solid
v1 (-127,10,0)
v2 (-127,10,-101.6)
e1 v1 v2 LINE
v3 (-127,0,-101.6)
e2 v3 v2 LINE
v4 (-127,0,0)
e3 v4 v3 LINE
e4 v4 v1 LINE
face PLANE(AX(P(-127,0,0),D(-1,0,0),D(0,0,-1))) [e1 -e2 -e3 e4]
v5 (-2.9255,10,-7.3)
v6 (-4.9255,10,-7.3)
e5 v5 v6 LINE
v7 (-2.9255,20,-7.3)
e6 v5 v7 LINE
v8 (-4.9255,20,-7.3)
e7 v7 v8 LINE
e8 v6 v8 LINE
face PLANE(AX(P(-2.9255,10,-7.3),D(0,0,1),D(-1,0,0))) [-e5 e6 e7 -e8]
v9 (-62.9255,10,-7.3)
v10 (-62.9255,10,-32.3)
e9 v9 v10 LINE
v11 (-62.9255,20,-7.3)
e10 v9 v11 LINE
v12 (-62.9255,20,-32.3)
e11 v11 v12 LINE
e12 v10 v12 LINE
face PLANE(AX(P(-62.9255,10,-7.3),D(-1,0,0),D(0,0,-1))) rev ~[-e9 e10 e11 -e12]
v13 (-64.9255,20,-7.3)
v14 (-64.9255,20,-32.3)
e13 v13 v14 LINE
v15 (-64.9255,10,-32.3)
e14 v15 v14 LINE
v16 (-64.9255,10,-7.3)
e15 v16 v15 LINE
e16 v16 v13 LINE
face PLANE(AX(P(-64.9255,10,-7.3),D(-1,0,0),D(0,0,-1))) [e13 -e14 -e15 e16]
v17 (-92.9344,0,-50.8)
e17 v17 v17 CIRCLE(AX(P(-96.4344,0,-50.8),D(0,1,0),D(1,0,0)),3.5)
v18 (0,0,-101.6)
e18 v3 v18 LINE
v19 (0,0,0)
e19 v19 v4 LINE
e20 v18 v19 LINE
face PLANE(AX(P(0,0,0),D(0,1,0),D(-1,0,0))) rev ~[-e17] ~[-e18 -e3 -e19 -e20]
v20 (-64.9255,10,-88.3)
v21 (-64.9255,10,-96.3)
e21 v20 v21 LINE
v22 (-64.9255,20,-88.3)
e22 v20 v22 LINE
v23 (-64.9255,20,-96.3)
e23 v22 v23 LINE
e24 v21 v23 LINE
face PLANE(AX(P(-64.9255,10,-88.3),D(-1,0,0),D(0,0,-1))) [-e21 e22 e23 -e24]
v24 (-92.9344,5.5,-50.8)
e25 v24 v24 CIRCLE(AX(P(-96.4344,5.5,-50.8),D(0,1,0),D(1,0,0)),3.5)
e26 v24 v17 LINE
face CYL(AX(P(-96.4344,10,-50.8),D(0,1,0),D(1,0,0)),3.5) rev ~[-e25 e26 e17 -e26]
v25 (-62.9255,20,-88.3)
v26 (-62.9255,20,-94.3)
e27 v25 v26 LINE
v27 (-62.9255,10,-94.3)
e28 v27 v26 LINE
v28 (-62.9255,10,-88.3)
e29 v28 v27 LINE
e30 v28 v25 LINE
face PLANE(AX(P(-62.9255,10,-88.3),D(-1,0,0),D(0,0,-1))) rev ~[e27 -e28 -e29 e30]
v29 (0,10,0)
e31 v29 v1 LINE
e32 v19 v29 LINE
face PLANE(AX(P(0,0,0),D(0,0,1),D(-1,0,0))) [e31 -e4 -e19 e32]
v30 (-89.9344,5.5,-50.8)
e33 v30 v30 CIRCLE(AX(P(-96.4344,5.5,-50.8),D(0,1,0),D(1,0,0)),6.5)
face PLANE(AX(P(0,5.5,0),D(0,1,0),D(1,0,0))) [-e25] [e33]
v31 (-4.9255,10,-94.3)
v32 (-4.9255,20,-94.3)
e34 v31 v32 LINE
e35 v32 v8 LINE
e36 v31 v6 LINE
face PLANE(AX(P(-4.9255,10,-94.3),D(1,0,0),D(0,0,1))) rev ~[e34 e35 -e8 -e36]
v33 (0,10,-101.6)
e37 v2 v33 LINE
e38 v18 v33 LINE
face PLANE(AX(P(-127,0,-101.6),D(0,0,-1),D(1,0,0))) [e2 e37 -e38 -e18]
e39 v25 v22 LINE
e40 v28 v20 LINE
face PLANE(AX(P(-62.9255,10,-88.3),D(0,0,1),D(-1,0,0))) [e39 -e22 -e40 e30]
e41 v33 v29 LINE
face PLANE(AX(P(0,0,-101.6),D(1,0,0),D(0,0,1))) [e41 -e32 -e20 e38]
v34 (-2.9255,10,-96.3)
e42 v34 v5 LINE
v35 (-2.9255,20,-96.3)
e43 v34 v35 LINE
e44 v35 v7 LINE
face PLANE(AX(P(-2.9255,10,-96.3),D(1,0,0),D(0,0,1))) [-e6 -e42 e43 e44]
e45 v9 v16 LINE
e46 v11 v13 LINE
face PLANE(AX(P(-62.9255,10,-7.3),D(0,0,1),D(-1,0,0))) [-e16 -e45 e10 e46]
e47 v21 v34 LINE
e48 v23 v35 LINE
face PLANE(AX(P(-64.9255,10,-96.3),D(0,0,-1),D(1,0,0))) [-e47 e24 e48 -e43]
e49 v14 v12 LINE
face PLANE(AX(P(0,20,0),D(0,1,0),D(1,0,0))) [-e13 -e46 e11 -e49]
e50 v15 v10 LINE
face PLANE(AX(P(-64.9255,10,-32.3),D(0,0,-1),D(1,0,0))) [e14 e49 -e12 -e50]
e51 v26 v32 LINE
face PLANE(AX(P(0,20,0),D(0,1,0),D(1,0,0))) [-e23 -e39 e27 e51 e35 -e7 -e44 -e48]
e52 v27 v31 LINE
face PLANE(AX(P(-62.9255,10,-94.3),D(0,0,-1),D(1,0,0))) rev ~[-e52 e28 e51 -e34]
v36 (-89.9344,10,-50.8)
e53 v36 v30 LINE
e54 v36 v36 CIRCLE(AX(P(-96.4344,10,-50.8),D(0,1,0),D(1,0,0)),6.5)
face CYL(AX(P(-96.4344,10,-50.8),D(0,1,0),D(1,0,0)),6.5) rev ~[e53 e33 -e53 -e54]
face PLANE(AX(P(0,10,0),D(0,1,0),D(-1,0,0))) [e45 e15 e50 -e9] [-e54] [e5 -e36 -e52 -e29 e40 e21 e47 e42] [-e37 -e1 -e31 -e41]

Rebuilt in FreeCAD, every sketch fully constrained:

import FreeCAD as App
import Part
import Sketcher
from FreeCAD import Vector
Q = App.Units.Quantity


def add_polygon(sketch, points):
    """Adds a closed chain of lines whose ends are joined by coincident constraints."""
    first, n = sketch.GeometryCount, len(points)
    for a, b in zip(points, points[1:] + points[:1]):
        sketch.addGeometry(Part.LineSegment(App.Vector(*a, 0), App.Vector(*b, 0)), False)
    for i in range(n):
        sketch.addConstraint(Sketcher.Constraint("Coincident", first + i, 2, first + (i + 1) % n, 1))

doc = App.newDocument("Part")
params = doc.addObject("Spreadsheet::Sheet", "Params")
for row, (alias, value) in enumerate([
    ("sketch1_width", "127 mm"),
    ("sketch1_height", "101.6 mm"),
    ("pad1_length", "10 mm"),
    ("sketch2_diameter", "7 mm"),
    ("sketch3_width", "2 mm"),
    ("sketch3_width2", "62 mm"),
    ("sketch3_height", "8 mm"),
    ("sketch3_height2", "6 mm"),
    ("sketch3_height3", "25 mm"),
    ("pad2_length", "10 mm"),
    ("sketch4_diameter", "13 mm"),
    ("sketch4_diameter2", "7 mm"),
    ("pocket2_length", "4.5 mm"),
], start=1):
    params.set(f"A{row}", alias)
    params.set(f"B{row}", "=" + value)
    params.setAlias(f"B{row}", alias)

body = doc.addObject("PartDesign::Body", "Body")

# Sketch on XZ plane
sketch1 = doc.addObject("Sketcher::SketchObject", "Sketch")
body.addObject(sketch1)
sketch1.AttachmentSupport = (doc.XZ_Plane, [""])
sketch1.MapMode = "FlatFace"
add_polygon(sketch1, [(-127, 0), (0, 0), (0, -101.6), (-127, -101.6)])  # lines 0-3
sketch1.addConstraint([
    Sketcher.Constraint("Horizontal", 0),
    Sketcher.Constraint("Vertical", 1),
    Sketcher.Constraint("Horizontal", 2),
    Sketcher.Constraint("Vertical", 3),
    Sketcher.Constraint("Coincident", 0, 2, -1, 1),
    Sketcher.Constraint("DistanceX", 0, 1, 0, 2, Q("127 mm")),
    Sketcher.Constraint("DistanceY", 1, 2, 1, 1, Q("101.6 mm")),
])
sketch1.setExpression("Constraints[9]", "Params.sketch1_width")
sketch1.setExpression("Constraints[10]", "Params.sketch1_height")
pad1 = doc.addObject("PartDesign::Pad", "Pad")
body.addObject(pad1)
pad1.Profile = sketch1
pad1.setExpression("Length", "Params.pad1_length")
pad1.Reversed = True

# Sketch on XZ plane
sketch2 = doc.addObject("Sketcher::SketchObject", "Sketch001")
body.addObject(sketch2)
sketch2.AttachmentSupport = (doc.XZ_Plane, [""])
sketch2.MapMode = "FlatFace"
sketch2.AttachmentOffset = App.Placement(Vector(0, 0, -10), App.Rotation())
sketch2.addGeometry(Part.Circle(Vector(-96.4344, -50.8, 0), Vector(0, 0, 1), 3.5), False)
sketch2.addConstraint([
    Sketcher.Constraint("Diameter", 0, Q("7 mm")),
    Sketcher.Constraint("DistanceY", 0, 3, -1, 1, Q("50.8 mm")),
    Sketcher.Constraint("DistanceX", 0, 3, -1, 1, Q("96.4344 mm")),
])
sketch2.setExpression("Constraints[0]", "Params.sketch2_diameter")
pocket1 = doc.addObject("PartDesign::Pocket", "Pocket")
body.addObject(pocket1)
pocket1.Profile = sketch2
pocket1.Type = "ThroughAll"
pocket1.Reversed = True

# Sketch on XZ plane
sketch3 = doc.addObject("Sketcher::SketchObject", "Sketch002")
body.addObject(sketch3)
sketch3.AttachmentSupport = (doc.XZ_Plane, [""])
sketch3.MapMode = "FlatFace"
sketch3.AttachmentOffset = App.Placement(Vector(0, 0, -10), App.Rotation())
add_polygon(sketch3, [(-4.9255, -94.3), (-4.9255, -7.3), (-2.9255, -7.3), (-2.9255, -96.3), (-64.9255, -96.3), (-64.9255, -88.3), (-62.9255, -88.3), (-62.9255, -94.3)])  # lines 0-7
add_polygon(sketch3, [(-64.9255, -7.3), (-62.9255, -7.3), (-62.9255, -32.3), (-64.9255, -32.3)])  # lines 8-11
sketch3.addConstraint([
    Sketcher.Constraint("Vertical", 0),
    Sketcher.Constraint("Horizontal", 1),
    Sketcher.Constraint("Vertical", 2),
    Sketcher.Constraint("Horizontal", 3),
    Sketcher.Constraint("Vertical", 4),
    Sketcher.Constraint("Horizontal", 5),
    Sketcher.Constraint("Vertical", 6),
    Sketcher.Constraint("Horizontal", 7),
    Sketcher.Constraint("Horizontal", 8),
    Sketcher.Constraint("Vertical", 9),
    Sketcher.Constraint("Horizontal", 10),
    Sketcher.Constraint("Vertical", 11),
    Sketcher.Constraint("Horizontal", 1, 2, 8, 2),
    Sketcher.Constraint("Vertical", 6, 2, 8, 2),
    Sketcher.Constraint("Vertical", 4, 2, 10, 2),
    Sketcher.Constraint("Equal", 1, 5),
    Sketcher.Constraint("DistanceX", 1, 1, 1, 2, Q("2 mm")),
    Sketcher.Constraint("DistanceX", 3, 2, 3, 1, Q("62 mm")),
    Sketcher.Constraint("DistanceY", 4, 1, 4, 2, Q("8 mm")),
    Sketcher.Constraint("DistanceY", 6, 2, 6, 1, Q("6 mm")),
    Sketcher.Constraint("DistanceY", 9, 2, 9, 1, Q("25 mm")),
    Sketcher.Constraint("DistanceY", 6, 2, 9, 2, Q("62 mm")),
    Sketcher.Constraint("DistanceY", 0, 2, -1, 1, Q("7.3 mm")),
    Sketcher.Constraint("DistanceX", 0, 2, -1, 1, Q("4.9255 mm")),
])
sketch3.setExpression("Constraints[28]", "Params.sketch3_width")
sketch3.setExpression("Constraints[29]", "Params.sketch3_width2")
sketch3.setExpression("Constraints[30]", "Params.sketch3_height")
sketch3.setExpression("Constraints[31]", "Params.sketch3_height2")
sketch3.setExpression("Constraints[32]", "Params.sketch3_height3")
pad2 = doc.addObject("PartDesign::Pad", "Pad001")
body.addObject(pad2)
pad2.Profile = sketch3
pad2.setExpression("Length", "Params.pad2_length")
pad2.Reversed = True

# Sketch on XZ plane
sketch4 = doc.addObject("Sketcher::SketchObject", "Sketch003")
body.addObject(sketch4)
sketch4.AttachmentSupport = (doc.XZ_Plane, [""])
sketch4.MapMode = "FlatFace"
sketch4.AttachmentOffset = App.Placement(Vector(0, 0, -10), App.Rotation())
sketch4.addGeometry([
    Part.Circle(Vector(-96.4344, -50.8, 0), Vector(0, 0, 1), 6.5),
    Part.Circle(Vector(-96.4344, -50.8, 0), Vector(0, 0, 1), 3.5),
], False)
sketch4.addConstraint([
    Sketcher.Constraint("Coincident", 1, 3, 0, 3),
    Sketcher.Constraint("Diameter", 0, Q("13 mm")),
    Sketcher.Constraint("Diameter", 1, Q("7 mm")),
    Sketcher.Constraint("DistanceY", 0, 3, -1, 1, Q("50.8 mm")),
    Sketcher.Constraint("DistanceX", 0, 3, -1, 1, Q("96.4344 mm")),
])
sketch4.setExpression("Constraints[1]", "Params.sketch4_diameter")
sketch4.setExpression("Constraints[2]", "Params.sketch4_diameter2")
pocket2 = doc.addObject("PartDesign::Pocket", "Pocket001")
body.addObject(pocket2)
pocket2.Profile = sketch4
pocket2.setExpression("Length", "Params.pocket2_length")
pocket2.Reversed = True

doc.recompute()
